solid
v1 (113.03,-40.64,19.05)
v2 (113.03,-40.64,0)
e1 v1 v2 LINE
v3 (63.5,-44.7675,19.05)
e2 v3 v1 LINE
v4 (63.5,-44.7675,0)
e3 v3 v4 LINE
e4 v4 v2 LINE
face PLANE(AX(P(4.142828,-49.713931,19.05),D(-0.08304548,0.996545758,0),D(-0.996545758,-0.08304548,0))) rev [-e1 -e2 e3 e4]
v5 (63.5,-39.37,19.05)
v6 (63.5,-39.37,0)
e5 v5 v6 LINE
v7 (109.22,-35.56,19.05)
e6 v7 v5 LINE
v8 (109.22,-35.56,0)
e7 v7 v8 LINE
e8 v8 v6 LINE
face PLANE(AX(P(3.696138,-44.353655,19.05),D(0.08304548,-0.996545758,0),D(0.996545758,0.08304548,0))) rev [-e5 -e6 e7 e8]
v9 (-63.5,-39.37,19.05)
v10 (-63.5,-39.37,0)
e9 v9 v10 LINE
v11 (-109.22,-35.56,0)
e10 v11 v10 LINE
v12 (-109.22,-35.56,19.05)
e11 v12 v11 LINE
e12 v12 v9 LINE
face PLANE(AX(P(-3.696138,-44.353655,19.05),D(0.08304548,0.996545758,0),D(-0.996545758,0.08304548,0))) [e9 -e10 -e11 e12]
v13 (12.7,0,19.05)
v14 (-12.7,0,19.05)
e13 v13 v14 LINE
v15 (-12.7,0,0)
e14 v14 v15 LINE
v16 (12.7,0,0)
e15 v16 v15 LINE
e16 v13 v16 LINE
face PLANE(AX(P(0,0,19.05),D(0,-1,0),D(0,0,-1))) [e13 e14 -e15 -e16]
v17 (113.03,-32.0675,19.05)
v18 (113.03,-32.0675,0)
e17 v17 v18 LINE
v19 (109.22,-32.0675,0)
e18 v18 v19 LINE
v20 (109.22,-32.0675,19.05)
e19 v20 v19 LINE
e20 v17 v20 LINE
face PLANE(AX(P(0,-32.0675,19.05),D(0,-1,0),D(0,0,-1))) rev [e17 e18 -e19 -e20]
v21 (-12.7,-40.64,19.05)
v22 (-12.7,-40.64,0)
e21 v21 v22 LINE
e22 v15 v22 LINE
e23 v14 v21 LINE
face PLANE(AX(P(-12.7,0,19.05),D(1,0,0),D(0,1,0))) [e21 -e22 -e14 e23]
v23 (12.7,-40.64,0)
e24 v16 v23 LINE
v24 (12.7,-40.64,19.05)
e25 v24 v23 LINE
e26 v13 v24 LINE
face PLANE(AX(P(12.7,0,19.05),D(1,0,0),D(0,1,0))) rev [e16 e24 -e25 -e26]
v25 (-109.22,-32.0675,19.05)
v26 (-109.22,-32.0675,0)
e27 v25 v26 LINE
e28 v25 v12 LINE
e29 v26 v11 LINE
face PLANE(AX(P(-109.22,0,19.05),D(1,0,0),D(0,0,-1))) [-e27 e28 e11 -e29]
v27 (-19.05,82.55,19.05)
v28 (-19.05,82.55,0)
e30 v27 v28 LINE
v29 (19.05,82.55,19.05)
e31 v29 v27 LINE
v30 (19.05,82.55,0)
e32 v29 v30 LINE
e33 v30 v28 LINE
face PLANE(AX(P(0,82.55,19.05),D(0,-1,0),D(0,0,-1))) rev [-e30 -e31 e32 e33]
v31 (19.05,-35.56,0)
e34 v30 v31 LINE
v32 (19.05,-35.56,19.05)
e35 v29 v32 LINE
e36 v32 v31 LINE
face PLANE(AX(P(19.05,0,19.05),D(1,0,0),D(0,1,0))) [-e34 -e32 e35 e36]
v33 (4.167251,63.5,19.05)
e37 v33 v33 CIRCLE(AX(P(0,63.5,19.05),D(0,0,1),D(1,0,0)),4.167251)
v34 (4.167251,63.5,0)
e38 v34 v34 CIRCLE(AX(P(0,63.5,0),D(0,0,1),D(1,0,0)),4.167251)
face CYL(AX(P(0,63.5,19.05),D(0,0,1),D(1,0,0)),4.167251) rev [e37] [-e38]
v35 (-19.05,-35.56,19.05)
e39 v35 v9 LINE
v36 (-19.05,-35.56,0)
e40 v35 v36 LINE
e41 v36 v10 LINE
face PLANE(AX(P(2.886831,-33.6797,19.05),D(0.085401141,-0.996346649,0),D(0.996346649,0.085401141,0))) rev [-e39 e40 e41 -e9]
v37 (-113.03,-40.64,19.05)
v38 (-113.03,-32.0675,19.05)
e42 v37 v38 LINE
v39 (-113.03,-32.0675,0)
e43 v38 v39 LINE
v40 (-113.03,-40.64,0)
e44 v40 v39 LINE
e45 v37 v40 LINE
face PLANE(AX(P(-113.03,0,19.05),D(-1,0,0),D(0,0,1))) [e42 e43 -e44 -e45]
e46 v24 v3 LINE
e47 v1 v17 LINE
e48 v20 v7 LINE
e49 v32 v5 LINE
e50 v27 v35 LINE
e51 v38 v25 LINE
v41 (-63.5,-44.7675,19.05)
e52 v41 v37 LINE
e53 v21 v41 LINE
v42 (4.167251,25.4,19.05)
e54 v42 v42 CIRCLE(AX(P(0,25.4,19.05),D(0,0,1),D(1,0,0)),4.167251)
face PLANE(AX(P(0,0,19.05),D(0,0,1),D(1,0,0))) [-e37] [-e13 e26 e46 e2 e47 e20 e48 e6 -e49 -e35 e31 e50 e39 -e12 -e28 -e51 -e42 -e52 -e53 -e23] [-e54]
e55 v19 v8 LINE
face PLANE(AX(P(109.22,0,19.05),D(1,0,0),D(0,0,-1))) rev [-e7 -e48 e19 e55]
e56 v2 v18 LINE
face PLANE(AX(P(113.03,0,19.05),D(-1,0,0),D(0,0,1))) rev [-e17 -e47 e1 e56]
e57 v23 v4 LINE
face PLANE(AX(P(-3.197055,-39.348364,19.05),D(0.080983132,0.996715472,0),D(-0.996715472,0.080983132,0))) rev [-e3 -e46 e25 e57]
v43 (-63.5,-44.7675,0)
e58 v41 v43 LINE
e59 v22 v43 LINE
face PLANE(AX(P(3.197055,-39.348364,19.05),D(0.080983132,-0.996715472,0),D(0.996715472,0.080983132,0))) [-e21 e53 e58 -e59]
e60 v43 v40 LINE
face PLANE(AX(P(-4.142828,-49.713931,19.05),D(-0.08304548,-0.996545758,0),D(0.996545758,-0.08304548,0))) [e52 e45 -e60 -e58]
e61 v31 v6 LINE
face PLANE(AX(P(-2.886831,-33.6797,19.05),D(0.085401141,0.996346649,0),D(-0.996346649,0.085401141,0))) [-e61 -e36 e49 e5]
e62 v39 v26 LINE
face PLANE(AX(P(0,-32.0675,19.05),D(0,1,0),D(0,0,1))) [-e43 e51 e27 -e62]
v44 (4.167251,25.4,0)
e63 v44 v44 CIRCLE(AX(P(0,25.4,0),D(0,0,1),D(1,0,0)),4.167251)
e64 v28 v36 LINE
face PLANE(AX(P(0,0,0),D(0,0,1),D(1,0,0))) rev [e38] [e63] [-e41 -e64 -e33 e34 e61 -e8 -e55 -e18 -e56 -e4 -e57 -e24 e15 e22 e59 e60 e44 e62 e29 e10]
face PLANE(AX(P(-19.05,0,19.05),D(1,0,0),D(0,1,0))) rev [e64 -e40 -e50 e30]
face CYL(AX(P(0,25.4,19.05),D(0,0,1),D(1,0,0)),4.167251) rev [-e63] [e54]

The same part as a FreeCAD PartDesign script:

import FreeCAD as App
import Part
import Sketcher

V = App.Vector
Q = App.Units.Quantity


def add_polygon(sketch, points):
    """Adds a closed chain of lines whose ends are joined by coincident constraints."""
    first, n = sketch.GeometryCount, len(points)
    for a, b in zip(points, points[1:] + points[:1]):
        sketch.addGeometry(Part.LineSegment(App.Vector(*a, 0), App.Vector(*b, 0)), False)
    for i in range(n):
        sketch.addConstraint(Sketcher.Constraint("Coincident", first + i, 2, first + (i + 1) % n, 1))

doc = App.newDocument("Part")
body = doc.addObject("PartDesign::Body", "Body")

sketch1 = body.newObject("Sketcher::SketchObject", "Sketch")
sketch1.AttachmentSupport = (doc.getObject("XY_Plane"), [""])
sketch1.MapMode = "FlatFace"
add_polygon(sketch1, [(12.7, 0), (12.7, -40.6), (63.5, -44.8), (113, -40.6), (113, -32.1), (109.2, -32.1), (109.2, -35.6), (63.5, -39.4), (19.1, -35.6), (19.1, 82.5), (-19.1, 82.5), (-19.1, -35.6), (-63.5, -39.4), (-109.2, -35.6), (-109.2, -32.1), (-113, -32.1), (-113, -40.6), (-63.5, -44.8), (-12.7, -40.6), (-12.7, 0)])
sketch1.addConstraint([
    Sketcher.Constraint("Vertical", 0),
    Sketcher.Constraint("Vertical", 3),
    Sketcher.Constraint("Horizontal", 4),
    Sketcher.Constraint("Vertical", 5),
    Sketcher.Constraint("Vertical", 8),
    Sketcher.Constraint("Horizontal", 9),
    Sketcher.Constraint("Vertical", 10),
    Sketcher.Constraint("Vertical", 13),
    Sketcher.Constraint("Horizontal", 14),
    Sketcher.Constraint("Vertical", 15),
    Sketcher.Constraint("Vertical", 18),
    Sketcher.Constraint("Horizontal", 19),
    Sketcher.Constraint("Symmetric", 18, 2, 19, 2, -1, 1),
    Sketcher.Constraint("Symmetric", 7, 2, 10, 2, -2),
    Sketcher.Constraint("Symmetric", 6, 2, 11, 2, -2),
    Sketcher.Constraint("Symmetric", 5, 2, 12, 2, -2),
    Sketcher.Constraint("Symmetric", 3, 2, 14, 2, -2),
    Sketcher.Constraint("Symmetric", 1, 2, 16, 2, -2),
    Sketcher.Constraint("Parallel", 2, 6),
    Sketcher.Constraint("Parallel", 12, 16),
    Sketcher.Constraint("Horizontal", 0, 2, 2, 2),
    Sketcher.Constraint("Horizontal", 5, 2, 7, 2),
    Sketcher.Constraint("Horizontal", 15, 2, 17, 2),
    Sketcher.Constraint("Vertical", 1, 2, 6, 2),
    Sketcher.Constraint("DistanceX", 19, 1, 19, 2, Q("1 in")),
    Sketcher.Constraint("DistanceX", 9, 2, 9, 1, Q("1.5 in")),
    Sketcher.Constraint("DistanceY", 0, 2, 0, 1, Q("1.6 in")),
    Sketcher.Constraint("DistanceX", 0, 2, 1, 2, Q("2 in")),
    Sketcher.Constraint("DistanceX", 4, 2, 4, 1, Q("0.15 in")),
    Sketcher.Constraint("DistanceY", 8, 1, 8, 2, Q("4.65 in")),
    Sketcher.Constraint("DistanceX", -1, 1, 4, 2, Q("4.3 in")),
    Sketcher.Constraint("DistanceY", 5, 2, -1, 1, Q("1.4 in")),
    Sketcher.Constraint("DistanceY", 1, 2, 3, 2, Q("0.5 in")),
    Sketcher.Constraint("DistanceY", 6, 2, 8, 2, Q("4.8 in")),
])
pad1 = body.newObject("PartDesign::Pad", "Pad")
pad1.Profile = sketch1
pad1.Length = Q("0.75 in")

sketch2 = body.newObject("Sketcher::SketchObject", "Sketch001")
sketch2.AttachmentSupport = (doc.getObject("XY_Plane"), [""])
sketch2.MapMode = "FlatFace"
sketch2.AttachmentOffset = App.Placement(V(0, 0, 0.75 * 25.4), App.Rotation())
sketch2.addGeometry([
    Part.Circle(V(0, 25.4, 0), V(0, 0, 1), 4.2),
    Part.Circle(V(0, 63.5, 0), V(0, 0, 1), 4.2),
], False)
sketch2.addConstraint([
    Sketcher.Constraint("Equal", 0, 1),
    Sketcher.Constraint("PointOnObject", 0, 3, -2),
    Sketcher.Constraint("PointOnObject", 1, 3, -2),
    Sketcher.Constraint("DistanceY", -1, 1, 0, 3, Q("1 in")),
    Sketcher.Constraint("DistanceY", -1, 1, 1, 3, Q("2.5 in")),
    Sketcher.Constraint("Diameter", 0, Q("8.334502 mm")),
])
doc.recompute()
hole = body.newObject("PartDesign::Hole", "Hole")
hole.Profile = sketch2
hole.ThreadType = "None"
hole.Diameter = 8.334502
hole.DepthType = "ThroughAll"

doc.recompute()
